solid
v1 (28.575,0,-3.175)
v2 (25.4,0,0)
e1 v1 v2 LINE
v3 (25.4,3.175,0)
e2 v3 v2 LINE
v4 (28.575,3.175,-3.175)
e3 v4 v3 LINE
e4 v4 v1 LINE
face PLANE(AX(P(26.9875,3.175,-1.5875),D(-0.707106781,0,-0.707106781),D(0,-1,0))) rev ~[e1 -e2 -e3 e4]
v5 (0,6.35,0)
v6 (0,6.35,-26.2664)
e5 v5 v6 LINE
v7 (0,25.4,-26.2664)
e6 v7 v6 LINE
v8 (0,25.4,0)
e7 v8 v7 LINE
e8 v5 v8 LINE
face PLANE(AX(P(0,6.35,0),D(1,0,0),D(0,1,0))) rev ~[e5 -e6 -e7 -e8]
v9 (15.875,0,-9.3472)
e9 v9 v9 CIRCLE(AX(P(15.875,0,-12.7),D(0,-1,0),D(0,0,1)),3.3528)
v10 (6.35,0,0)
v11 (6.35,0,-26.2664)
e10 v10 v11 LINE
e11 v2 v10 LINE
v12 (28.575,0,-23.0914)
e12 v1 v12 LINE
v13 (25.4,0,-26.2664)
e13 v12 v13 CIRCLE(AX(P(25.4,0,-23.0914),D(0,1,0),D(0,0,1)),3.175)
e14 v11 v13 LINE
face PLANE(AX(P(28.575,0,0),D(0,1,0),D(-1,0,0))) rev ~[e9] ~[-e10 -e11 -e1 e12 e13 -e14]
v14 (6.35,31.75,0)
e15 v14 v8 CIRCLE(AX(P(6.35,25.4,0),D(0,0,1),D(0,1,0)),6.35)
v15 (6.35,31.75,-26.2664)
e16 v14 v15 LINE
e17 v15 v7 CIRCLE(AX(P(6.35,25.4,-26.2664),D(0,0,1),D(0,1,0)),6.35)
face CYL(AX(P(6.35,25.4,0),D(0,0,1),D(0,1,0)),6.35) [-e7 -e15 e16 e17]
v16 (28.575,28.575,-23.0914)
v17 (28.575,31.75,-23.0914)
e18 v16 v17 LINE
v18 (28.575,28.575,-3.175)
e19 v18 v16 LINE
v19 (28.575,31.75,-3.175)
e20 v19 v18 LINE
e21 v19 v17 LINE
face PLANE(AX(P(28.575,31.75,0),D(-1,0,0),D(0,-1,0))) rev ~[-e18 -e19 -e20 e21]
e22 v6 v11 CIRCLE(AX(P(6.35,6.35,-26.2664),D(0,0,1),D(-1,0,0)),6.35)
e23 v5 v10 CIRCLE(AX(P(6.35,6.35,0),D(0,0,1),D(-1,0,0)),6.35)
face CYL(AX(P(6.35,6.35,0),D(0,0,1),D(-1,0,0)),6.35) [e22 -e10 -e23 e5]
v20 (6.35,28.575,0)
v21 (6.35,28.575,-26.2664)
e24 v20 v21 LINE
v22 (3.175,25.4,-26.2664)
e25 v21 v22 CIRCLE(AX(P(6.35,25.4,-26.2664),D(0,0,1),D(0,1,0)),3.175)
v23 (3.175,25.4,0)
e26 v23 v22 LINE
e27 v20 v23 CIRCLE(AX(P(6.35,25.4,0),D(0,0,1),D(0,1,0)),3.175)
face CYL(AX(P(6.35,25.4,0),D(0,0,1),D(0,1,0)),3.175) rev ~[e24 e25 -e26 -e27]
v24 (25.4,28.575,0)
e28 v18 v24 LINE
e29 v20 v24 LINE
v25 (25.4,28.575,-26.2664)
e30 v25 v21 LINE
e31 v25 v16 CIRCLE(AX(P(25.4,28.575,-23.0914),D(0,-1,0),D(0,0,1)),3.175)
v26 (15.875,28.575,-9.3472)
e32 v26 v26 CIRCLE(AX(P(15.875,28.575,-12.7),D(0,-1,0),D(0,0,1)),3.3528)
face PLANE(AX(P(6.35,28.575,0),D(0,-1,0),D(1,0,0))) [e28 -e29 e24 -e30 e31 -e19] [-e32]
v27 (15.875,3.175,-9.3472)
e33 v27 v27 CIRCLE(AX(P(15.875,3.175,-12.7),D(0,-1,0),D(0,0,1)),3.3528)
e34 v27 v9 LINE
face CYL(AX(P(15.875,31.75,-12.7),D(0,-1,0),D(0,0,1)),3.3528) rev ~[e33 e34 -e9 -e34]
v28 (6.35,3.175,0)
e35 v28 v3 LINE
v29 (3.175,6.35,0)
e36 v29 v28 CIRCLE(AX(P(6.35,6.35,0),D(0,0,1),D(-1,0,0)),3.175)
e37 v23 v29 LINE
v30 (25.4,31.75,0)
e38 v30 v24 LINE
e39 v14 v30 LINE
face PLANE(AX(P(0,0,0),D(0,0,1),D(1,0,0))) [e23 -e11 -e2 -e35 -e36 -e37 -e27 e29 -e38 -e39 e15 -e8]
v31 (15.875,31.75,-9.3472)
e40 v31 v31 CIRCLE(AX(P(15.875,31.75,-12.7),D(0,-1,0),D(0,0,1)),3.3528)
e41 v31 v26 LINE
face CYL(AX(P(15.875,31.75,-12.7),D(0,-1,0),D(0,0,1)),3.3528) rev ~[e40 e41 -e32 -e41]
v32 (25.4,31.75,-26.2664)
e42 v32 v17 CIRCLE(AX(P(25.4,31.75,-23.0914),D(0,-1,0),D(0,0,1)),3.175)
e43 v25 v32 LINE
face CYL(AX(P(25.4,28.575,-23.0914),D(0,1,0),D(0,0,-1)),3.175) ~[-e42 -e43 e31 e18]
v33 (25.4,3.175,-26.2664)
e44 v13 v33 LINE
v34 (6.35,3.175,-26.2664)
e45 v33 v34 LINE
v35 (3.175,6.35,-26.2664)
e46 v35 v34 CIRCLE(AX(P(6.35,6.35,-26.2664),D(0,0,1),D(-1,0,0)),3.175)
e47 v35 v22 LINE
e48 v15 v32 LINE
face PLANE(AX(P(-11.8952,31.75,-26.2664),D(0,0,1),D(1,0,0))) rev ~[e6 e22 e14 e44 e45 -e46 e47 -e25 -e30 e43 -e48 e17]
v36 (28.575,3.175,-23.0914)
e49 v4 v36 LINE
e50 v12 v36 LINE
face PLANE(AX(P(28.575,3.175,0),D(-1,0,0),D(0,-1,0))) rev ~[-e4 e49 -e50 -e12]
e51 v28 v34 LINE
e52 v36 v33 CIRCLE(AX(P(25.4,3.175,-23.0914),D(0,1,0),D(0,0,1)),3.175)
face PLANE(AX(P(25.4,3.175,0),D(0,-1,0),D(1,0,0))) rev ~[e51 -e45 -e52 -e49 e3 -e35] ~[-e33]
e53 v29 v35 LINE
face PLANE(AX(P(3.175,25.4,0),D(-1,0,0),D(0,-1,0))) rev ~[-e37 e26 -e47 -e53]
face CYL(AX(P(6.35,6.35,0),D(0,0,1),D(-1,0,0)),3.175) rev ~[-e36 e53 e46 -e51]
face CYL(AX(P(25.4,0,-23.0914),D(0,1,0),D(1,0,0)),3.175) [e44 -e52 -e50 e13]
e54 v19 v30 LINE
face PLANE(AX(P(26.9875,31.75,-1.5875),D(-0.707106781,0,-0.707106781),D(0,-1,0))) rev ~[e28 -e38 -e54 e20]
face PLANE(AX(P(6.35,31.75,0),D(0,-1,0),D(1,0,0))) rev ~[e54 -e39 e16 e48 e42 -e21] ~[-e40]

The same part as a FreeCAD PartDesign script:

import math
import FreeCAD as App
import Part
import Sketcher
Q = App.Units.Quantity


def edges_at(feature, points):
    """Names of the edges that pass closest to the given points."""
    edges = feature.Shape.Edges
    near = lambda p: min(range(len(edges)), key=lambda i: edges[i].distToShape(Part.Vertex(*p))[0])
    return sorted({f"Edge{near(p) + 1}" for p in points})

doc = App.newDocument("Part")
params = doc.addObject("Spreadsheet::Sheet", "Params")
for row, (alias, value) in enumerate([
    ("sketch1_radius", "0.25 in"),
    ("sketch1_radius2", "0.125 in"),
    ("sketch1_width", "0.875 in"),
    ("pad1_length", "30 in"),
    ("chamfer_size", "0.125 in"),
    ("sketch2_diameter", "0.264 in"),
    ("hole_diameter", "0.264 in"),
    ("linearpattern_pitch", "1 in"),
    ("pocket1_length", "2 in"),
    ("sketch4_diameter", "0.378 in"),
    ("fillet_radius", "0.125 in"),
], start=1):
    params.set(f"A{row}", alias)
    params.set(f"B{row}", "=" + value)
    params.setAlias(f"B{row}", alias)

body = doc.addObject("PartDesign::Body", "Body")

sketch1 = body.newObject("Sketcher::SketchObject", "Sketch")
sketch1.AttachmentSupport = (doc.getObject("XY_Plane"), [""])
sketch1.MapMode = "FlatFace"
sketch1.addGeometry(Part.ArcOfCircle(Part.Circle(App.Vector(6.3, 25.4, 0), App.Vector(0, 0, 1), 3.2), math.radians(90), math.radians(180)), False)
sketch1.addGeometry(Part.LineSegment(App.Vector(6.3, 28.6, 0), App.Vector(28.6, 28.6, 0)), False)
sketch1.addGeometry(Part.LineSegment(App.Vector(28.6, 28.6, 0), App.Vector(28.6, 31.8, 0)), False)
sketch1.addGeometry(Part.LineSegment(App.Vector(28.6, 31.8, 0), App.Vector(6.3, 31.8, 0)), False)
sketch1.addGeometry(Part.ArcOfCircle(Part.Circle(App.Vector(6.3, 25.4, 0), App.Vector(0, 0, 1), 6.4), math.radians(90), math.radians(180)), False)
sketch1.addGeometry(Part.LineSegment(App.Vector(0, 25.4, 0), App.Vector(0, 6.3, 0)), False)
sketch1.addGeometry(Part.ArcOfCircle(Part.Circle(App.Vector(6.3, 6.3, 0), App.Vector(0, 0, 1), 6.3), math.radians(180), math.radians(270)), False)
sketch1.addGeometry(Part.LineSegment(App.Vector(6.3, 0, 0), App.Vector(28.6, 0, 0)), False)
sketch1.addGeometry(Part.LineSegment(App.Vector(28.6, 0, 0), App.Vector(28.6, 3.2, 0)), False)
sketch1.addGeometry(Part.LineSegment(App.Vector(28.6, 3.2, 0), App.Vector(6.3, 3.2, 0)), False)
sketch1.addGeometry(Part.ArcOfCircle(Part.Circle(App.Vector(6.3, 6.3, 0), App.Vector(0, 0, 1), 3.2), math.radians(180), math.radians(270)), False)
sketch1.addGeometry(Part.LineSegment(App.Vector(3.2, 6.3, 0), App.Vector(3.2, 25.4, 0)), False)
sketch1.addConstraint(Sketcher.Constraint("Tangent", 0, 1, 1, 1))
sketch1.addConstraint(Sketcher.Constraint("Coincident", 1, 2, 2, 1))
sketch1.addConstraint(Sketcher.Constraint("Coincident", 2, 2, 3, 1))
sketch1.addConstraint(Sketcher.Constraint("Tangent", 3, 2, 4, 1))
sketch1.addConstraint(Sketcher.Constraint("Tangent", 4, 2, 5, 1))
sketch1.addConstraint(Sketcher.Constraint("Tangent", 5, 2, 6, 1))
sketch1.addConstraint(Sketcher.Constraint("Tangent", 6, 2, 7, 1))
sketch1.addConstraint(Sketcher.Constraint("Coincident", 7, 2, 8, 1))
sketch1.addConstraint(Sketcher.Constraint("Coincident", 8, 2, 9, 1))
sketch1.addConstraint(Sketcher.Constraint("Tangent", 9, 2, 10, 2))
sketch1.addConstraint(Sketcher.Constraint("Tangent", 10, 1, 11, 1))
sketch1.addConstraint(Sketcher.Constraint("Tangent", 11, 2, 0, 2))
sketch1.addConstraint(Sketcher.Constraint("Horizontal", 1))
sketch1.addConstraint(Sketcher.Constraint("Vertical", 2))
sketch1.addConstraint(Sketcher.Constraint("Horizontal", 3))
sketch1.addConstraint(Sketcher.Constraint("Vertical", 5))
sketch1.addConstraint(Sketcher.Constraint("Horizontal", 7))
sketch1.addConstraint(Sketcher.Constraint("Vertical", 8))
sketch1.addConstraint(Sketcher.Constraint("Horizontal", 9))
sketch1.addConstraint(Sketcher.Constraint("Vertical", 11))
sketch1.addConstraint(Sketcher.Constraint("Coincident", 4, 3, 0, 3))
sketch1.addConstraint(Sketcher.Constraint("Coincident", 10, 3, 6, 3))
sketch1.addConstraint(Sketcher.Constraint("Equal", 4, 6))
sketch1.addConstraint(Sketcher.Constraint("PointOnObject", 4, 2, -2))
sketch1.addConstraint(Sketcher.Constraint("PointOnObject", 6, 2, -1))
sketch1.addConstraint(Sketcher.Constraint("Vertical", 2, 2, 7, 2))
sketch1.addConstraint(Sketcher.Constraint("Radius", 4, Q("0.25 in")))
sketch1.addConstraint(Sketcher.Constraint("DistanceY", -1, 1, 0, 3, Q("1 in")))
sketch1.addConstraint(Sketcher.Constraint("Radius", 0, Q("0.125 in")))
sketch1.addConstraint(Sketcher.Constraint("DistanceX", 1, 1, 1, 2, Q("0.875 in")))
sketch1.setExpression("Constraints[26]", "Params.sketch1_radius")
sketch1.setExpression("Constraints[28]", "Params.sketch1_radius2")
sketch1.setExpression("Constraints[29]", "Params.sketch1_width")
pad1 = body.newObject("PartDesign::Pad", "Pad")
pad1.Profile = sketch1
pad1.setExpression("Length", "Params.pad1_length")
pad1.Reversed = True
doc.recompute()

chamfer = body.newObject("PartDesign::Chamfer", "Chamfer")
chamfer.Base = (pad1, edges_at(pad1, [
    (28.575, 30.163, 0),
    (28.575, 1.587, 0),
    (28.575, 30.163, -762),
    (28.575, 1.587, -762),
]))
chamfer.setExpression("Size", "Params.chamfer_size")

sketch2 = body.newObject("Sketcher::SketchObject", "Sketch001")
sketch2.AttachmentSupport = (doc.getObject("XZ_Plane"), [""])
sketch2.MapMode = "FlatFace"
sketch2.AttachmentOffset = App.Placement(App.Vector(0, 0, -1.25 * 25.4), App.Rotation())
sketch2.addGeometry(Part.Circle(App.Vector(15.9, -12.7, 0), App.Vector(0, 0, 1), 3.4), False)
sketch2.addConstraint(Sketcher.Constraint("Diameter", 0, Q("0.264 in")))
sketch2.addConstraint(Sketcher.Constraint("DistanceY", 0, 3, -1, 1, Q("0.5 in")))
sketch2.addConstraint(Sketcher.Constraint("DistanceX", -1, 1, 0, 3, Q("0.625 in")))
sketch2.setExpression("Constraints[0]", "Params.sketch2_diameter")
doc.recompute()
hole = body.newObject("PartDesign::Hole", "Hole")
hole.Profile = sketch2
hole.ThreadType = "None"
hole.setExpression("Diameter", "Params.hole_diameter")
hole.DepthType = "ThroughAll"
hole.Reversed = True
doc.recompute()

linearpattern = body.newObject("PartDesign::LinearPattern", "LinearPattern")
linearpattern.Originals = [hole]
linearpattern.Direction = (doc.getObject("Z_Axis"), [""])
linearpattern.Mode = "offset"
linearpattern.setExpression("Offset", "Params.linearpattern_pitch")
linearpattern.Occurrences = 30
linearpattern.Reversed = True
body.Tip = linearpattern

sketch3 = body.newObject("Sketcher::SketchObject", "Sketch002")
sketch3.AttachmentSupport = (doc.getObject("XZ_Plane"), [""])
sketch3.MapMode = "FlatFace"
sketch3.AttachmentOffset = App.Placement(App.Vector(0, 0, -1.25 * 25.4), App.Rotation())
sketch3.addGeometry(Part.LineSegment(App.Vector(-12, -1028, 0), App.Vector(-12, -26, 0)), False)
sketch3.addGeometry(Part.LineSegment(App.Vector(-12, -26, 0), App.Vector(94, -26, 0)), False)
sketch3.addGeometry(Part.LineSegment(App.Vector(94, -26, 0), App.Vector(94, -1028, 0)), False)
sketch3.addGeometry(Part.LineSegment(App.Vector(94, -1028, 0), App.Vector(-12, -1028, 0)), False)
sketch3.addConstraint(Sketcher.Constraint("Coincident", 0, 2, 1, 1))
sketch3.addConstraint(Sketcher.Constraint("Coincident", 1, 2, 2, 1))
sketch3.addConstraint(Sketcher.Constraint("Coincident", 2, 2, 3, 1))
sketch3.addConstraint(Sketcher.Constraint("Coincident", 3, 2, 0, 1))
sketch3.addConstraint(Sketcher.Constraint("Vertical", 0))
sketch3.addConstraint(Sketcher.Constraint("Horizontal", 1))
sketch3.addConstraint(Sketcher.Constraint("Vertical", 2))
sketch3.addConstraint(Sketcher.Constraint("Horizontal", 3))
sketch3.addConstraint(Sketcher.Constraint("DistanceX", 1, 1, 1, 2, Q("4.1832 in")))
sketch3.addConstraint(Sketcher.Constraint("DistanceY", 0, 1, 0, 2, 1001.4877))
sketch3.addConstraint(Sketcher.Constraint("DistanceY", 0, 2, -1, 1, Q("1.0341 in")))
sketch3.addConstraint(Sketcher.Constraint("DistanceX", -1, 1, 1, 2, Q("3.7149 in")))
pocket1 = body.newObject("PartDesign::Pocket", "Pocket")
pocket1.Profile = sketch3
pocket1.setExpression("Length", "Params.pocket1_length")
pocket1.Reversed = True

sketch4 = body.newObject("Sketcher::SketchObject", "Sketch003")
sketch4.AttachmentSupport = (doc.getObject("YZ_Plane"), [""])
sketch4.MapMode = "FlatFace"
sketch4.addGeometry(Part.Circle(App.Vector(15.9, -63.5, 0), App.Vector(0, 0, 1), 4.8), False)
sketch4.addConstraint(Sketcher.Constraint("Diameter", 0, Q("0.378 in")))
sketch4.addConstraint(Sketcher.Constraint("DistanceY", 0, 3, -1, 1, Q("2.5 in")))
sketch4.addConstraint(Sketcher.Constraint("DistanceX", -1, 1, 0, 3, Q("0.625 in")))
sketch4.setExpression("Constraints[0]", "Params.sketch4_diameter")
pocket2 = body.newObject("PartDesign::Pocket", "Pocket001")
pocket2.Profile = sketch4
pocket2.Type = "ThroughAll"
pocket2.Reversed = True
doc.recompute()

fillet = body.newObject("PartDesign::Fillet", "Fillet")
fillet.Base = (pocket2, edges_at(pocket2, [(28.575, 30.163, -26.266), (28.575, 1.587, -26.266)]))
fillet.setExpression("Radius", "Params.fillet_radius")

doc.recompute()
